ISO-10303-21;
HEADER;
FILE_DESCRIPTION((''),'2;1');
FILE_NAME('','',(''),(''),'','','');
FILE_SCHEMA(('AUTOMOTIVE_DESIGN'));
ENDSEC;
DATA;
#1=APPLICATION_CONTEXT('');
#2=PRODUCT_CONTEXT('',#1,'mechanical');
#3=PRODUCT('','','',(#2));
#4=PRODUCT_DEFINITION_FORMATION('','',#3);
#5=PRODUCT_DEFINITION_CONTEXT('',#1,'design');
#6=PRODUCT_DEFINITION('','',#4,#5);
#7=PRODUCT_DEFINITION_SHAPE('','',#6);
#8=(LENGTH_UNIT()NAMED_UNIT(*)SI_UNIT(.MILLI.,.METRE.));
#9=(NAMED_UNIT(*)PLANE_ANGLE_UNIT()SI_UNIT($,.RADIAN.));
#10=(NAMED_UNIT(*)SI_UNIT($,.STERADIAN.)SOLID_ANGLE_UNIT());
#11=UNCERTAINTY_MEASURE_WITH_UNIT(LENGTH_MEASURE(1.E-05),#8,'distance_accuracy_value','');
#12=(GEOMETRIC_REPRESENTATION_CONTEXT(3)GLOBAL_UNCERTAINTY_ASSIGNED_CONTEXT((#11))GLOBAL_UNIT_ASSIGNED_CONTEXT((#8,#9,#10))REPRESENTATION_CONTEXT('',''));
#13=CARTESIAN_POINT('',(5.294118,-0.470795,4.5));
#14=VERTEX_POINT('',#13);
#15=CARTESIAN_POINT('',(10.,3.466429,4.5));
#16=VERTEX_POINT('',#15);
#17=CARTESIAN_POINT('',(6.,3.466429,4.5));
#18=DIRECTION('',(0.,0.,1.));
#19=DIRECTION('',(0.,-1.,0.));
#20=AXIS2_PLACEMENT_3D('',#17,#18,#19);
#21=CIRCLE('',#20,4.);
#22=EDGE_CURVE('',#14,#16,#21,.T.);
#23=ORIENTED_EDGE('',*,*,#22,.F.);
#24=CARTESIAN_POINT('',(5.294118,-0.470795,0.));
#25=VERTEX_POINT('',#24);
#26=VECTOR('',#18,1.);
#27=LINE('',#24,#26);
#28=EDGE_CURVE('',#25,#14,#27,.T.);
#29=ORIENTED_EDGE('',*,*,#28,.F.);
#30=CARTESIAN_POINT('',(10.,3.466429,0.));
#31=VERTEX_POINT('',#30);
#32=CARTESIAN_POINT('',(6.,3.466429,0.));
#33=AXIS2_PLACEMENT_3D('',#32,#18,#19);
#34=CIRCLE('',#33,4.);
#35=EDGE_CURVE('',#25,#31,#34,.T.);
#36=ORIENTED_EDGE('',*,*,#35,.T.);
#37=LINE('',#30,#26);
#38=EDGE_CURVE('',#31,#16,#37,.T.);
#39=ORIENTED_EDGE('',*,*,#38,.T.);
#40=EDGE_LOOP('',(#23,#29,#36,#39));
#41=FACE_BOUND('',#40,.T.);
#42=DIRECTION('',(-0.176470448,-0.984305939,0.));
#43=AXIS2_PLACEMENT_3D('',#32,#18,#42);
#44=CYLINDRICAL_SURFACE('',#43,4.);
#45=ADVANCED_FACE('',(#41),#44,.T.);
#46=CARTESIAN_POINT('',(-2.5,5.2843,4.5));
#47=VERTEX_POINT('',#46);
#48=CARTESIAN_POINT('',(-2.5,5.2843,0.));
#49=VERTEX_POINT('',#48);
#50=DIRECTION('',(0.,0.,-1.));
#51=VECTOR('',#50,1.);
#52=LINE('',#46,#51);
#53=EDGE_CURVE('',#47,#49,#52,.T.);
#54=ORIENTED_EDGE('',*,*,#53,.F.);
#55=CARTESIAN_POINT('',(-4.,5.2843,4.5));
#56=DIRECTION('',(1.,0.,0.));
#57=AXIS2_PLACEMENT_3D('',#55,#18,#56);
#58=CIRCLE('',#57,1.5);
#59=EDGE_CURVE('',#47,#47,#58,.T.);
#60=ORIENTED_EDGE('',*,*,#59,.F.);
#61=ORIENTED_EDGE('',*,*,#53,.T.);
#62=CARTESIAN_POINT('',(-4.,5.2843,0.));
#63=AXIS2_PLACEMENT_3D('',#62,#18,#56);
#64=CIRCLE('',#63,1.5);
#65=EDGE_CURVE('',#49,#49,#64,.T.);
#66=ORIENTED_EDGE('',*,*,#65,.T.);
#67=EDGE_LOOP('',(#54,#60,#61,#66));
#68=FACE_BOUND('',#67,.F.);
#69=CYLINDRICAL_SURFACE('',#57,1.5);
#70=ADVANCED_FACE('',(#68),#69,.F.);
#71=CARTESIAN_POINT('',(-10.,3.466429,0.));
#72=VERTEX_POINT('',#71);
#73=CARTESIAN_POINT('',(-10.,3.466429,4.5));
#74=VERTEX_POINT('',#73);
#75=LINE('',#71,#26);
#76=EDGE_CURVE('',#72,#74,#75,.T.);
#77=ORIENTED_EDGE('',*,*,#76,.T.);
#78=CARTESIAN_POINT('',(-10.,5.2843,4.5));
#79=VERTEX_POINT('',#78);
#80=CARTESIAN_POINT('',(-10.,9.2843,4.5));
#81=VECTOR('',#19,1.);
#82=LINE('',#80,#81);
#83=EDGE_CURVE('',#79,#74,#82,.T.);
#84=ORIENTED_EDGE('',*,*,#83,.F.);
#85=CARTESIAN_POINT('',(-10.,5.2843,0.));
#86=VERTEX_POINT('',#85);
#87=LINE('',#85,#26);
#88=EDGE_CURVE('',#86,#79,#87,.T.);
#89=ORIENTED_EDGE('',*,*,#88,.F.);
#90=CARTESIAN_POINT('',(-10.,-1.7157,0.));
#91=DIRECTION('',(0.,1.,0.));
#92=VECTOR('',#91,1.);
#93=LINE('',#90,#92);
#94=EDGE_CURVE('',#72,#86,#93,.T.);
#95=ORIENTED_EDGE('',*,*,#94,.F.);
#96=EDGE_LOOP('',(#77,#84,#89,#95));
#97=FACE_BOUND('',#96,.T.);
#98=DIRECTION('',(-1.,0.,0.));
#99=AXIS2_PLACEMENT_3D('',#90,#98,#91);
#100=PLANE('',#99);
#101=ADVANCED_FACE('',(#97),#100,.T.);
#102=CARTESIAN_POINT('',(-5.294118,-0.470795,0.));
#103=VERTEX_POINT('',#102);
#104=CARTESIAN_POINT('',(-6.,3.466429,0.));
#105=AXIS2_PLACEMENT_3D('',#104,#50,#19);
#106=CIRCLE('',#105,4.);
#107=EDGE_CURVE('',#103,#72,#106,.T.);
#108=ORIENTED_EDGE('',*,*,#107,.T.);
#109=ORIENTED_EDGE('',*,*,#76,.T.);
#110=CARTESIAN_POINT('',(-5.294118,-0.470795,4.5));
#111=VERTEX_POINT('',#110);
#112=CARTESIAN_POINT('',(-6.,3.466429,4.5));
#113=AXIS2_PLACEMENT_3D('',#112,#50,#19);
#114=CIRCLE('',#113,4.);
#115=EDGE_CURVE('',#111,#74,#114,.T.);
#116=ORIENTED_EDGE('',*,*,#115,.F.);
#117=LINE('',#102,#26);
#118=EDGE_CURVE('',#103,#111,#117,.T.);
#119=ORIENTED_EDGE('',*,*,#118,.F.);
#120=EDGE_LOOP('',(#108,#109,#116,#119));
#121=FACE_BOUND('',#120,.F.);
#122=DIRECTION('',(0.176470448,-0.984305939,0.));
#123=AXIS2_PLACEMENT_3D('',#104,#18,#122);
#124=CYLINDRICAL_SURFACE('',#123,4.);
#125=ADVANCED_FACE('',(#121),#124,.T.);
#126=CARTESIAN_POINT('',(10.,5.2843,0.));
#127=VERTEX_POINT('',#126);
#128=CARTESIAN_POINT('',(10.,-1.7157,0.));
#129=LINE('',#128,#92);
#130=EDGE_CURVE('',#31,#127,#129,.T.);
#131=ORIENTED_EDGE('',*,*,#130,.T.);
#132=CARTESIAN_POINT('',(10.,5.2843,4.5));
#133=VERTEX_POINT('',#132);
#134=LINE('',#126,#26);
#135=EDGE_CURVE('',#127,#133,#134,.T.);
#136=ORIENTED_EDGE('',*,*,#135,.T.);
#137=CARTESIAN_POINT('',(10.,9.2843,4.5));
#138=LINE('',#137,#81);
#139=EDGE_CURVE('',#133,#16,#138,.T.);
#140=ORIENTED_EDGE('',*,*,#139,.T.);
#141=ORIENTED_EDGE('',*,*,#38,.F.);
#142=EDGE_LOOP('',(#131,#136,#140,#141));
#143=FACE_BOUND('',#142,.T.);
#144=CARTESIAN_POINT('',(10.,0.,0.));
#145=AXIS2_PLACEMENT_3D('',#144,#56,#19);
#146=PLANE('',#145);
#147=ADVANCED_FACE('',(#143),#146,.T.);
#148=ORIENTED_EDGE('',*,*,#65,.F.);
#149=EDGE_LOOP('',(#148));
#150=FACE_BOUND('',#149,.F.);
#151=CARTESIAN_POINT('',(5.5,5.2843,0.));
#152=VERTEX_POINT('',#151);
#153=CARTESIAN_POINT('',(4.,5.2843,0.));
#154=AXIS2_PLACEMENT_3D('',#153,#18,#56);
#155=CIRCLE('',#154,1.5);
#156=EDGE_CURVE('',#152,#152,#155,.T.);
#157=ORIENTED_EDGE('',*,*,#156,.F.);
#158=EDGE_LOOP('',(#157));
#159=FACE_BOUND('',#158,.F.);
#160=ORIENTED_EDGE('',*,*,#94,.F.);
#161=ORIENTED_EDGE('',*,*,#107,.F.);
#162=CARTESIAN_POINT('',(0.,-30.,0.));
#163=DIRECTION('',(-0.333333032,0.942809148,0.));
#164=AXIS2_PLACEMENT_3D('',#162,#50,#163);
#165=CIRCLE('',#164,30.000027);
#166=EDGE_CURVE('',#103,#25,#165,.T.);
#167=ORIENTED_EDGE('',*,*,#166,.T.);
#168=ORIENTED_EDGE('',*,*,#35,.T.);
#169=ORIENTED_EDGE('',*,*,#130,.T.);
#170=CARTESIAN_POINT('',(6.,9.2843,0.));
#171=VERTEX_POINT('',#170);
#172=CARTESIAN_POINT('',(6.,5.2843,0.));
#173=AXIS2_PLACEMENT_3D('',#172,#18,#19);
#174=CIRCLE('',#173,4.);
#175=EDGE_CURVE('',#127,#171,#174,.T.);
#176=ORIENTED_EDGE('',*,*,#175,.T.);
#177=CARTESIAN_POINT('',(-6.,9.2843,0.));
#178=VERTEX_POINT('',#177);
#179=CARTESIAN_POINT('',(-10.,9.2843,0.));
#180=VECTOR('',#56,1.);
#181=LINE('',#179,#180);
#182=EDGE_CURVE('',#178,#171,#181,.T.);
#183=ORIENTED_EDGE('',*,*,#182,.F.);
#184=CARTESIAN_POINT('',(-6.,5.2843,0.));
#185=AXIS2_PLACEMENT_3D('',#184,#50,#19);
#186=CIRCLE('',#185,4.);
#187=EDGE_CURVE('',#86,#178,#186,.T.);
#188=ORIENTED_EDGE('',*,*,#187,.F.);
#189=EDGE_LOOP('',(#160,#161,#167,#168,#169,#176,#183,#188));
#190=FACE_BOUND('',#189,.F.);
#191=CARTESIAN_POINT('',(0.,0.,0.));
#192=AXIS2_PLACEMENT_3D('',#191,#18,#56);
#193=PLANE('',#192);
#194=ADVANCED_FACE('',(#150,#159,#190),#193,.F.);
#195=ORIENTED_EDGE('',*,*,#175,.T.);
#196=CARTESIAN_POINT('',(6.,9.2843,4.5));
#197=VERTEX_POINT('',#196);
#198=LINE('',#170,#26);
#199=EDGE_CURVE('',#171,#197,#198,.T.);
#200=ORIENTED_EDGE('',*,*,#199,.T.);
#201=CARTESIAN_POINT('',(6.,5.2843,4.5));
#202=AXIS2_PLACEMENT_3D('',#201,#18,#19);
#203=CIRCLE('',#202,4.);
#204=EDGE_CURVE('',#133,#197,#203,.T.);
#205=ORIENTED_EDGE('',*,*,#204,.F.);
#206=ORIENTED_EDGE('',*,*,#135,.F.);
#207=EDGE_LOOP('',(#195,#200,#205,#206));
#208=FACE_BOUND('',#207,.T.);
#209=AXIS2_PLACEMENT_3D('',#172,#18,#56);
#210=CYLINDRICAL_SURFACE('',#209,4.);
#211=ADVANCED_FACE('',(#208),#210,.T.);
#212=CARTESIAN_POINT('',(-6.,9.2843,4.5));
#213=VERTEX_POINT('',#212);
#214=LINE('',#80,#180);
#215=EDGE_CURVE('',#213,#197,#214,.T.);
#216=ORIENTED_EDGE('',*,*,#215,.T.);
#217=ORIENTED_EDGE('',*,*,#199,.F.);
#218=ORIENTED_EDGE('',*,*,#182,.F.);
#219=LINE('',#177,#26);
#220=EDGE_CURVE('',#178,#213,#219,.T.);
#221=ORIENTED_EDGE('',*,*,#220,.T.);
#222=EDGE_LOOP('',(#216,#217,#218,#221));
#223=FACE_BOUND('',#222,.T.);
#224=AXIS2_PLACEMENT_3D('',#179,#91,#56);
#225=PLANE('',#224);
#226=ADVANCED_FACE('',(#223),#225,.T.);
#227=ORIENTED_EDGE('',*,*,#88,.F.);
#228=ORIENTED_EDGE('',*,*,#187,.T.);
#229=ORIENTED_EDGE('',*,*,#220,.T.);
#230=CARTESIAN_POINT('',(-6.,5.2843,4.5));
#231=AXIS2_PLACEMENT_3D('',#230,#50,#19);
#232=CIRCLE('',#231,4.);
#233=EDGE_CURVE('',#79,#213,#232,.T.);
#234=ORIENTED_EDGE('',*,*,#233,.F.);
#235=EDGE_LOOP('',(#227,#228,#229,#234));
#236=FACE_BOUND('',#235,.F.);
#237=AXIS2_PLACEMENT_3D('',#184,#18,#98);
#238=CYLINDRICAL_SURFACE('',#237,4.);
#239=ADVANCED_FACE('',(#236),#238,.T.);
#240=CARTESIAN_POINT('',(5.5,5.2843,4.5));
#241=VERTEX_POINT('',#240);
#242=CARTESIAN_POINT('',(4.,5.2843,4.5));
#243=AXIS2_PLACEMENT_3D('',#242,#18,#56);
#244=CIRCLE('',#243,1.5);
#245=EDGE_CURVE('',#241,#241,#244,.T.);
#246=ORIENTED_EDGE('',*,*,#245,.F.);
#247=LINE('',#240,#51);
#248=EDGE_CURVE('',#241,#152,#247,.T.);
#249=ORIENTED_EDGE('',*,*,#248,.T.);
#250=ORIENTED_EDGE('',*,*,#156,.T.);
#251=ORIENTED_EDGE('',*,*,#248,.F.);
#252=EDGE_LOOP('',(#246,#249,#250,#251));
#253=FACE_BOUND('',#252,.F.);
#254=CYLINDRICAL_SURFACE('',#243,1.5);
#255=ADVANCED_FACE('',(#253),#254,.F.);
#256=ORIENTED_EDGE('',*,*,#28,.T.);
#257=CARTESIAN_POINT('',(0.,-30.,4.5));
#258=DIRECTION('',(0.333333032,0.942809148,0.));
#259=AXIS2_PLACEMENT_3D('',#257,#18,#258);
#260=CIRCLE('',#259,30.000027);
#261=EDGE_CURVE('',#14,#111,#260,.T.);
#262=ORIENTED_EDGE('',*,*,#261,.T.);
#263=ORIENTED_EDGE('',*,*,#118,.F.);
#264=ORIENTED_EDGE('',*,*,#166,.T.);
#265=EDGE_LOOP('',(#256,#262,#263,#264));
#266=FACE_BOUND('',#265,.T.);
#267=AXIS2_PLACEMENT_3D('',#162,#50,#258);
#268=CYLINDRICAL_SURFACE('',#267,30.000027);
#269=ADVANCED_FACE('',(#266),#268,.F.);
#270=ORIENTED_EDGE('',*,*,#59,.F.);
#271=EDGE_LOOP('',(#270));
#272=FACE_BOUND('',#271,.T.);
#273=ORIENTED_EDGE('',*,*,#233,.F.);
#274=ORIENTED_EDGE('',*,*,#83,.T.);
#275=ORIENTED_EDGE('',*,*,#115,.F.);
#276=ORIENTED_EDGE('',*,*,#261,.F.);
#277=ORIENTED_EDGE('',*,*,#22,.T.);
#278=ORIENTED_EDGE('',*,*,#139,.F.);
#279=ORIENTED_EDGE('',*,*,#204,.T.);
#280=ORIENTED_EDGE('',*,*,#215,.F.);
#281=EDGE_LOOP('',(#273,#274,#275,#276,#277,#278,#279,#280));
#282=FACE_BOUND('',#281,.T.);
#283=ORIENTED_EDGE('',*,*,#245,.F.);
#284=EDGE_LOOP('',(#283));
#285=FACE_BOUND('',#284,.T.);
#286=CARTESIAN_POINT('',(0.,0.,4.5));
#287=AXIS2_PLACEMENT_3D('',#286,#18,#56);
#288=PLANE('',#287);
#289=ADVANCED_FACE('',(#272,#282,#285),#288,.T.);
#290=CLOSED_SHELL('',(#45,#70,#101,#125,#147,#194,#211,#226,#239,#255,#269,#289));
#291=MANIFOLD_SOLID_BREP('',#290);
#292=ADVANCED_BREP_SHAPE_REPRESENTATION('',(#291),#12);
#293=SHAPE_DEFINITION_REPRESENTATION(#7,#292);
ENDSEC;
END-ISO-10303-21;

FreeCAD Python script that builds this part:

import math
import FreeCAD as App
import Part
import Sketcher
Q = App.Units.Quantity


def edges_at(feature, points):
    """Names of the edges that pass closest to the given points."""
    edges = feature.Shape.Edges
    near = lambda p: min(range(len(edges)), key=lambda i: edges[i].distToShape(Part.Vertex(*p))[0])
    return sorted({f"Edge{near(p) + 1}" for p in points})

doc = App.newDocument("Part")
params = doc.addObject("Spreadsheet::Sheet", "Params")
for row, (alias, value) in enumerate([
    ("sketch1_radius", "30 mm"),
    ("sketch1_width", "20 mm"),
    ("sketch1_height", "11 mm"),
    ("pad1_length", "4.5 mm"),
    ("fillet_radius", "4 mm"),
    ("sketch2_diameter", "3 mm"),
    ("pocket1_length", "7.5 mm"),
], start=1):
    params.set(f"A{row}", alias)
    params.set(f"B{row}", "=" + value)
    params.setAlias(f"B{row}", alias)

body = doc.addObject("PartDesign::Body", "Body")

# Sketch on XY plane
sketch1 = body.newObject("Sketcher::SketchObject", "Sketch")
sketch1.AttachmentSupport = (doc.getObject("XY_Plane"), [""])
sketch1.MapMode = "FlatFace"
sketch1.addGeometry(Part.LineSegment(App.Vector(10, -2, 0), App.Vector(10, 9, 0)), False)
sketch1.addGeometry(Part.LineSegment(App.Vector(10, 9, 0), App.Vector(-10, 9, 0)), False)
sketch1.addGeometry(Part.LineSegment(App.Vector(-10, 9, 0), App.Vector(-10, -2, 0)), False)
sketch1.addGeometry(Part.ArcOfCircle(Part.Circle(App.Vector(0, -30, 0), App.Vector(0, 0, 1), 30), math.radians(71), math.radians(109)), False)
sketch1.addConstraint(Sketcher.Constraint("Coincident", 0, 2, 1, 1))
sketch1.addConstraint(Sketcher.Constraint("Coincident", 1, 2, 2, 1))
sketch1.addConstraint(Sketcher.Constraint("Coincident", 2, 2, 3, 2))
sketch1.addConstraint(Sketcher.Constraint("Coincident", 3, 1, 0, 1))
sketch1.addConstraint(Sketcher.Constraint("Vertical", 0))
sketch1.addConstraint(Sketcher.Constraint("Horizontal", 1))
sketch1.addConstraint(Sketcher.Constraint("Vertical", 2))
sketch1.addConstraint(Sketcher.Constraint("Symmetric", 2, 2, 3, 1, -2))
sketch1.addConstraint(Sketcher.Constraint("Radius", 3, Q("30 mm")))
sketch1.addConstraint(Sketcher.Constraint("DistanceX", 1, 2, 1, 1, Q("20 mm")))
sketch1.addConstraint(Sketcher.Constraint("DistanceY", 0, 1, 0, 2, Q("11 mm")))
sketch1.addConstraint(Sketcher.Constraint("DistanceY", 3, 3, -1, 1, Q("30 mm")))
sketch1.setExpression("Constraints[8]", "Params.sketch1_radius")
sketch1.setExpression("Constraints[9]", "Params.sketch1_width")
sketch1.setExpression("Constraints[10]", "Params.sketch1_height")
pad1 = body.newObject("PartDesign::Pad", "Pad")
pad1.Profile = sketch1
pad1.setExpression("Length", "Params.pad1_length")
doc.recompute()

fillet = body.newObject("PartDesign::Fillet", "Fillet")
fillet.Base = (pad1, edges_at(pad1, [
    (-10, 9.284, 2.25),
    (10, 9.284, 2.25),
    (10, -1.716, 2.25),
    (-10, -1.716, 2.25),
]))
fillet.setExpression("Radius", "Params.fillet_radius")

# Sketch on XY plane
sketch2 = body.newObject("Sketcher::SketchObject", "Sketch001")
sketch2.AttachmentSupport = (doc.getObject("XY_Plane"), [""])
sketch2.MapMode = "FlatFace"
sketch2.AttachmentOffset = App.Placement(App.Vector(0, 0, 4.5), App.Rotation())
sketch2.addGeometry(Part.Circle(App.Vector(-4, 5.3, 0), App.Vector(0, 0, 1), 1.5), False)
sketch2.addGeometry(Part.Circle(App.Vector(4, 5.3, 0), App.Vector(0, 0, 1), 1.5), False)
sketch2.addConstraint(Sketcher.Constraint("Equal", 0, 1))
sketch2.addConstraint(Sketcher.Constraint("Symmetric", 0, 3, 1, 3, -2))
sketch2.addConstraint(Sketcher.Constraint("Diameter", 0, Q("3 mm")))
sketch2.addConstraint(Sketcher.Constraint("DistanceX", 0, 3, -1, 1, Q("4 mm")))
sketch2.addConstraint(Sketcher.Constraint("DistanceY", -1, 1, 0, 3, Q("5.2843 mm")))
sketch2.setExpression("Constraints[2]", "Params.sketch2_diameter")
pocket1 = body.newObject("PartDesign::Pocket", "Pocket")
pocket1.Profile = sketch2
pocket1.setExpression("Length", "Params.pocket1_length")

doc.recompute()
